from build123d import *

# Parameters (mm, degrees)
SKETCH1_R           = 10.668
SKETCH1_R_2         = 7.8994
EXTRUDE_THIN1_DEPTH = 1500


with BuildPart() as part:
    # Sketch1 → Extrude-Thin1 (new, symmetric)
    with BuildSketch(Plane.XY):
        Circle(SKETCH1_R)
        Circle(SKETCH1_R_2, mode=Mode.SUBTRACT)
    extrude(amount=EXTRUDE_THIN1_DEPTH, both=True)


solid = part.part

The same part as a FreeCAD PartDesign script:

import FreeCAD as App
import Part
import Sketcher
Q = App.Units.Quantity

doc = App.newDocument("Part")
body = doc.addObject("PartDesign::Body", "Body")

# Sketch on XY plane
sketch1 = doc.addObject("Sketcher::SketchObject", "Sketch")
body.addObject(sketch1)
sketch1.AttachmentSupport = (doc.XY_Plane, [""])
sketch1.MapMode = "FlatFace"
sketch1.addGeometry([
    Part.Circle(App.Vector(0, 0, 0), App.Vector(0, 0, 1), 11),
    Part.Circle(App.Vector(0, 0, 0), App.Vector(0, 0, 1), 8),
], False)
sketch1.addConstraint([
    Sketcher.Constraint("Coincident", 0, 3, -1, 1),
    Sketcher.Constraint("Coincident", 1, 3, -1, 1),
    Sketcher.Constraint("Diameter", 0, Q("0.84 in")),
    Sketcher.Constraint("Diameter", 1, Q("0.622 in")),
])
pad1 = doc.addObject("PartDesign::Pad", "Pad")
body.addObject(pad1)
pad1.Profile = sketch1
pad1.Length = 3000
pad1.Midplane = True

doc.recompute()
